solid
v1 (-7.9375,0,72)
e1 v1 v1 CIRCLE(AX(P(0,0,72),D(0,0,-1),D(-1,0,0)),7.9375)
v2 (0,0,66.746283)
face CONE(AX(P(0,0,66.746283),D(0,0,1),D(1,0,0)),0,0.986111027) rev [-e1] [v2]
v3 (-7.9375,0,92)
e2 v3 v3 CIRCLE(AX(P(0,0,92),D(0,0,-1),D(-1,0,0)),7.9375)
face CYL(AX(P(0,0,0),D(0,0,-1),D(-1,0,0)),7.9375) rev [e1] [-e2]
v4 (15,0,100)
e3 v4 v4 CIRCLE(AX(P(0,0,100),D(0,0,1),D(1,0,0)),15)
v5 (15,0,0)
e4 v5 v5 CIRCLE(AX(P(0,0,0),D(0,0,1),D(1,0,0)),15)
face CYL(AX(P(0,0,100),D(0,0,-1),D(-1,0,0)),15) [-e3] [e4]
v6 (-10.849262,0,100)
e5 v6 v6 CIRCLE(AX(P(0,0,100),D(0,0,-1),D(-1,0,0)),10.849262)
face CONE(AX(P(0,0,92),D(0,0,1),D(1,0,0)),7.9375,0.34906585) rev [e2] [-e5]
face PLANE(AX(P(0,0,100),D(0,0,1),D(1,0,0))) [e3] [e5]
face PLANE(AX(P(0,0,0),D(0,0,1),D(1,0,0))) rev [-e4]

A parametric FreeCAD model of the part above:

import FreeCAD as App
import Part
import Sketcher
Q = App.Units.Quantity

doc = App.newDocument("Part")
body = doc.addObject("PartDesign::Body", "Body")

sketch1 = doc.addObject("Sketcher::SketchObject", "Sketch")
body.addObject(sketch1)
sketch1.AttachmentSupport = (doc.XY_Plane, [""])
sketch1.MapMode = "FlatFace"
sketch1.addGeometry(Part.Circle(App.Vector(0, 0, 0), App.Vector(0, 0, 1), 15), False)
sketch1.addConstraint(Sketcher.Constraint("Coincident", 0, 3, -1, 1))
sketch1.addConstraint(Sketcher.Constraint("Diameter", 0, 30.0))
pad1 = doc.addObject("PartDesign::Pad", "Pad")
body.addObject(pad1)
pad1.Profile = sketch1
pad1.Length = 100

sketch2 = doc.addObject("Sketcher::SketchObject", "Sketch001")
body.addObject(sketch2)
sketch2.AttachmentSupport = (doc.YZ_Plane, [""])
sketch2.MapMode = "FlatFace"
sketch2.addGeometry(Part.LineSegment(App.Vector(10.849262, 100, 0), App.Vector(0, 100, 0)), False)
sketch2.addGeometry(Part.LineSegment(App.Vector(0, 100, 0), App.Vector(0, 66.746283, 0)), False)
sketch2.addGeometry(Part.LineSegment(App.Vector(0, 66.746283, 0), App.Vector(7.9375, 72, 0)), False)
sketch2.addGeometry(Part.LineSegment(App.Vector(7.9375, 72, 0), App.Vector(7.9375, 92, 0)), False)
sketch2.addGeometry(Part.LineSegment(App.Vector(7.9375, 92, 0), App.Vector(10.849262, 100, 0)), False)
sketch2.addConstraint(Sketcher.Constraint("Coincident", 0, 2, 1, 1))
sketch2.addConstraint(Sketcher.Constraint("Coincident", 1, 2, 2, 1))
sketch2.addConstraint(Sketcher.Constraint("Coincident", 2, 2, 3, 1))
sketch2.addConstraint(Sketcher.Constraint("Coincident", 3, 2, 4, 1))
sketch2.addConstraint(Sketcher.Constraint("Coincident", 4, 2, 0, 1))
sketch2.addConstraint(Sketcher.Constraint("Horizontal", 0))
sketch2.addConstraint(Sketcher.Constraint("Vertical", 1))
sketch2.addConstraint(Sketcher.Constraint("Vertical", 3))
sketch2.addConstraint(Sketcher.Constraint("PointOnObject", 0, 2, -2))
sketch2.addConstraint(Sketcher.Constraint("DistanceY", 3, 1, 3, 2, 20.0))
sketch2.addConstraint(Sketcher.Constraint("Angle", 4, Q("70 deg")))
sketch2.addConstraint(Sketcher.Constraint("DistanceY", -1, 1, 0, 2, 100.0))
sketch2.addConstraint(Sketcher.Constraint("DistanceY", -1, 1, 2, 2, 72.0))
sketch2.addConstraint(Sketcher.Constraint("Angle", 2, Q("33.5 deg")))
sketch2.addConstraint(Sketcher.Constraint("DistanceX", 0, 2, 0, 1, 10.849262))
groove = doc.addObject("PartDesign::Groove", "Groove")
body.addObject(groove)
groove.Profile = sketch2
groove.ReferenceAxis = (sketch2, ["V_Axis"])
groove.Angle = 360

doc.recompute()
